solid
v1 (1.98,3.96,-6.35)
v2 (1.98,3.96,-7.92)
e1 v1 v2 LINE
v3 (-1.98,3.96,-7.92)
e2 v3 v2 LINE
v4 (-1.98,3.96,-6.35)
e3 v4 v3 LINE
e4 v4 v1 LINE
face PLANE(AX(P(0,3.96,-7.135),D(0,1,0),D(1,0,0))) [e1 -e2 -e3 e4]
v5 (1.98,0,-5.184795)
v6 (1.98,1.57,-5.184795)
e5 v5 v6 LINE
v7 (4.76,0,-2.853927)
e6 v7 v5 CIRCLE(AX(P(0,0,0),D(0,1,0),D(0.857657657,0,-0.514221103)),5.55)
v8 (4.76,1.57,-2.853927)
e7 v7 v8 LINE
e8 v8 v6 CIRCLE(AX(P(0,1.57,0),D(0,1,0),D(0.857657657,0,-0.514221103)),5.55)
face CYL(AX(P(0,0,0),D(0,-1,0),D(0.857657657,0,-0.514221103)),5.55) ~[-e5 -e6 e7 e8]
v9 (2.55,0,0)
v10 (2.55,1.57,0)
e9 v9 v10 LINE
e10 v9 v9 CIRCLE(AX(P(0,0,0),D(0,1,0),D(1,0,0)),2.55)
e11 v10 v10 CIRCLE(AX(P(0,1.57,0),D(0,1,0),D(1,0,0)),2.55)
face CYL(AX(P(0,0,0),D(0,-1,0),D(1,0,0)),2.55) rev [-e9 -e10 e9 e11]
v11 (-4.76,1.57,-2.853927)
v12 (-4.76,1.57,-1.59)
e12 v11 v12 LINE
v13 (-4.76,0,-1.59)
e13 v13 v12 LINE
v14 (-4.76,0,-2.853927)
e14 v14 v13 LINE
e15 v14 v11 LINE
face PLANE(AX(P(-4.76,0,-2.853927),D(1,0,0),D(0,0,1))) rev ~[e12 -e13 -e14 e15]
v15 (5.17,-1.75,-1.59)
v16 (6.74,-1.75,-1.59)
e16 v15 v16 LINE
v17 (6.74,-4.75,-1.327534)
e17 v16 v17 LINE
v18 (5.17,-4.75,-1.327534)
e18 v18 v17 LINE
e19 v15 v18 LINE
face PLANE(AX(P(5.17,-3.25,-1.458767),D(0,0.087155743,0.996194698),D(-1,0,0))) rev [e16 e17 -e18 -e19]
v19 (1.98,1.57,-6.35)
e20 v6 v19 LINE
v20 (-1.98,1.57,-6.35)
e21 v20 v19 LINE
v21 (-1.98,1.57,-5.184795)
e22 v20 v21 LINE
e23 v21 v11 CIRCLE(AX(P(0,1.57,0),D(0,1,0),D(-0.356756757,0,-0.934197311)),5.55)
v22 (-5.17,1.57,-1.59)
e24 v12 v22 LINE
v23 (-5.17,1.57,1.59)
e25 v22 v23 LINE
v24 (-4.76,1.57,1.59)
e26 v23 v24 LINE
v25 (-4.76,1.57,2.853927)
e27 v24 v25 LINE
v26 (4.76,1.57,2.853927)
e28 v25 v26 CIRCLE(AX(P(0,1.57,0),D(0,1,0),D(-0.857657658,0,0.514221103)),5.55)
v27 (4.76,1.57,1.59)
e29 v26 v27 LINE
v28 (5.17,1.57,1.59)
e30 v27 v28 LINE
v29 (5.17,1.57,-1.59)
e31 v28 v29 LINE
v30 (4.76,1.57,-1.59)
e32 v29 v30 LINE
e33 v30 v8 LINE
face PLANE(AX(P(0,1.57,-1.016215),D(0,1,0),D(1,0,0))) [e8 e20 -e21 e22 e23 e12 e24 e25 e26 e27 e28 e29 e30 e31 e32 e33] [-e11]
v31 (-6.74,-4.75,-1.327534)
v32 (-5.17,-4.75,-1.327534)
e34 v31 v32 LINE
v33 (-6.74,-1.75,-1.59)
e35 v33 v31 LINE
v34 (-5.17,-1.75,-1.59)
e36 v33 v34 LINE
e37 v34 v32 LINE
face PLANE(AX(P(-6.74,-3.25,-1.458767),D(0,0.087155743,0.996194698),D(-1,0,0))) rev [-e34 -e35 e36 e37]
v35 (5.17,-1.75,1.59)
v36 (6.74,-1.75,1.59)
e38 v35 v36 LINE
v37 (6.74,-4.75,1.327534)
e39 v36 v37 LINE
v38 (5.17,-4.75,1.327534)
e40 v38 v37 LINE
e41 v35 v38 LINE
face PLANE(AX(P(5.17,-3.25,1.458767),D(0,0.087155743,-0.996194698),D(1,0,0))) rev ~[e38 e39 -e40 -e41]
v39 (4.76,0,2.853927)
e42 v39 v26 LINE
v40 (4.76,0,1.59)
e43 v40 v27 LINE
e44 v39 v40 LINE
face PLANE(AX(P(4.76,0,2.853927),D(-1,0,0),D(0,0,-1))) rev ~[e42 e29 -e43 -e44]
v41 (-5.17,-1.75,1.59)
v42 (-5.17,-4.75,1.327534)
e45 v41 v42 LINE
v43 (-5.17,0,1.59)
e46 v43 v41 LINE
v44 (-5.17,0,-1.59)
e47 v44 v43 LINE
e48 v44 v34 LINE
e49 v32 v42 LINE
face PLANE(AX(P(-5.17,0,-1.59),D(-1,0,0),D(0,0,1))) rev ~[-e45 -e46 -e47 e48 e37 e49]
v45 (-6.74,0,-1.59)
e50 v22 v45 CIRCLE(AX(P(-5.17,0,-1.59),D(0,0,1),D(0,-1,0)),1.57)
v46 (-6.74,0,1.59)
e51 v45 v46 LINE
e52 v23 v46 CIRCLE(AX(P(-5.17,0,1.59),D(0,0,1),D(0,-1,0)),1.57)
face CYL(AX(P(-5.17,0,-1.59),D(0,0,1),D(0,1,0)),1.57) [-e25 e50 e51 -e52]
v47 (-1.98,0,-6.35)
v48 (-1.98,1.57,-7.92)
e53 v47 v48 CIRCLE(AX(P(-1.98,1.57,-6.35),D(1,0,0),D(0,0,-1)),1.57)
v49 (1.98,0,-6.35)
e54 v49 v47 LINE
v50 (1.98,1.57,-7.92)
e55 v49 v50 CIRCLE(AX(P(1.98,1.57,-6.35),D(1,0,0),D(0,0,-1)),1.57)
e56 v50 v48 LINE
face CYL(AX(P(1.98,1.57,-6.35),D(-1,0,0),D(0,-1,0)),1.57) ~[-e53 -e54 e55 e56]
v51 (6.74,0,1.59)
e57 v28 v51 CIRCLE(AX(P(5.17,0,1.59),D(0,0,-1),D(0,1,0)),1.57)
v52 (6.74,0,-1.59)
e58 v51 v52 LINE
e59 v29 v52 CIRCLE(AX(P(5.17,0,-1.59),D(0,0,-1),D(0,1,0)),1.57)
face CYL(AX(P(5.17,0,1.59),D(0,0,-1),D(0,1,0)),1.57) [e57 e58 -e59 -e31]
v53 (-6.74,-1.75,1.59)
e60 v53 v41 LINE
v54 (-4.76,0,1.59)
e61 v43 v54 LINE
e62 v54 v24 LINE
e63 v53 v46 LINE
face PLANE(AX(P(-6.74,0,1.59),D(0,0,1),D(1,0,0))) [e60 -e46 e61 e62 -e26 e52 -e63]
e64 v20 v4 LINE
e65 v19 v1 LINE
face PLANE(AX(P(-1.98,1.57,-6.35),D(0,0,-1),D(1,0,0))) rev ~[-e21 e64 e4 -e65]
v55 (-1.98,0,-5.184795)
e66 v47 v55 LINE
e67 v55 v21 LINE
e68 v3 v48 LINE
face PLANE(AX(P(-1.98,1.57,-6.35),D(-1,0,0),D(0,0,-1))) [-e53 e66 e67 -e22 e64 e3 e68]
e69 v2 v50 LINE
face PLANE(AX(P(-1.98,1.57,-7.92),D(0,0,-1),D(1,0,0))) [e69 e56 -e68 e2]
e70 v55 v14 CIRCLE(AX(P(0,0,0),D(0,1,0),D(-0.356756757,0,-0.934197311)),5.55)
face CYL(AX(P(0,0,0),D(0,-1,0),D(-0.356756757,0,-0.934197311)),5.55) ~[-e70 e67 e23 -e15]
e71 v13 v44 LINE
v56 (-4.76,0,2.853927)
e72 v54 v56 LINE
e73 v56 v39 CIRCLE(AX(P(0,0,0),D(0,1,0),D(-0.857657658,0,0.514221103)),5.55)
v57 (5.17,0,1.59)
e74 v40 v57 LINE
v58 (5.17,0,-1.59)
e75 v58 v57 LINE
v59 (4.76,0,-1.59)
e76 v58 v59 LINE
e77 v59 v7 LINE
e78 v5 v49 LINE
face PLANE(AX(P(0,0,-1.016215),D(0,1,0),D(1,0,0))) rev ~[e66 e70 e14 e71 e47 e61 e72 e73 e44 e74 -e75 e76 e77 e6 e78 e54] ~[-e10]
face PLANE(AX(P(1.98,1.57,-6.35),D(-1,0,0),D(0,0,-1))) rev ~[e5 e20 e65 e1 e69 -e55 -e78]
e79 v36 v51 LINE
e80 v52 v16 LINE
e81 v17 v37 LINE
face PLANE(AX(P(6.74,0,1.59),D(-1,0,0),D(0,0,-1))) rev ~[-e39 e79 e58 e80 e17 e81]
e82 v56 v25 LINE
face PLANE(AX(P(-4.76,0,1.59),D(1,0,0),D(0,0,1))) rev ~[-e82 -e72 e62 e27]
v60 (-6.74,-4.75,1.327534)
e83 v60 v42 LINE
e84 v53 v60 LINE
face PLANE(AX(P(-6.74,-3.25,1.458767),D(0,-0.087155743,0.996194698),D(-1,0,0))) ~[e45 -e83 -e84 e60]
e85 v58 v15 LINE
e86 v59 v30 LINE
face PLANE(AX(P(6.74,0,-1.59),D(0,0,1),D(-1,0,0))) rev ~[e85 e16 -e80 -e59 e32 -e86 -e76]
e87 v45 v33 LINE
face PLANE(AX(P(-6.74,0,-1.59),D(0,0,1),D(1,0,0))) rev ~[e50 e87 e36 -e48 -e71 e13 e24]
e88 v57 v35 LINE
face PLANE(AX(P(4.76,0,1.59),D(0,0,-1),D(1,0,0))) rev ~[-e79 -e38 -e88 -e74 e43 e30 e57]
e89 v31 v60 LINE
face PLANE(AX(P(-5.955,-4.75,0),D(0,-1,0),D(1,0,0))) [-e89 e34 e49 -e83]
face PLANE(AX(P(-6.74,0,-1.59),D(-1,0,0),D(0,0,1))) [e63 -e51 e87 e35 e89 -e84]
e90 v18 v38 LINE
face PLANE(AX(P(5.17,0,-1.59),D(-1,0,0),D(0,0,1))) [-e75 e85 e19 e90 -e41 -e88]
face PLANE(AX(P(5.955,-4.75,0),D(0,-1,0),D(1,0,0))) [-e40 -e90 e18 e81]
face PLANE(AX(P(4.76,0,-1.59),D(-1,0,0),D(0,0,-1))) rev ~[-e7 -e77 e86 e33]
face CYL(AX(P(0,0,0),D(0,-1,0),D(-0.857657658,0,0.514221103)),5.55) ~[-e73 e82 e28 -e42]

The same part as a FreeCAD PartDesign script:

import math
import FreeCAD as App
import Part
import Sketcher

V = App.Vector
Q = App.Units.Quantity


def edges_at(feature, points):
    """Names of the edges that pass closest to the given points."""
    edges = feature.Shape.Edges
    near = lambda p: min(range(len(edges)), key=lambda i: edges[i].distToShape(Part.Vertex(*p))[0])
    return sorted({f"Edge{near(p) + 1}" for p in points})


def add_polygon(sketch, points):
    """Adds a closed chain of lines whose ends are joined by coincident constraints."""
    first, n = sketch.GeometryCount, len(points)
    for a, b in zip(points, points[1:] + points[:1]):
        sketch.addGeometry(Part.LineSegment(App.Vector(*a, 0), App.Vector(*b, 0)), False)
    for i in range(n):
        sketch.addConstraint(Sketcher.Constraint("Coincident", first + i, 2, first + (i + 1) % n, 1))

doc = App.newDocument("Part")
body = doc.addObject("PartDesign::Body", "Body")

sketch1 = body.newObject("Sketcher::SketchObject", "Sketch")
sketch1.AttachmentSupport = (doc.getObject("XZ_Plane"), [""])
sketch1.MapMode = "FlatFace"
sketch1.addGeometry([
    Part.LineSegment(V(-4.76, -2.853927, 0), V(-4.76, -1.59, 0)),
    Part.LineSegment(V(-4.76, -1.59, 0), V(-6.74, -1.59, 0)),
    Part.LineSegment(V(-6.74, -1.59, 0), V(-6.74, 1.59, 0)),
    Part.LineSegment(V(-6.74, 1.59, 0), V(-4.76, 1.59, 0)),
    Part.LineSegment(V(-4.76, 1.59, 0), V(-4.76, 2.853927, 0)),
    Part.ArcOfCircle(Part.Circle(V(0, 0, 0), V(0, 0, 1), 5.55), math.radians(30.945407), math.radians(149.054593)),
    Part.LineSegment(V(4.76, 2.853927, 0), V(4.76, 1.59, 0)),
    Part.LineSegment(V(4.76, 1.59, 0), V(6.74, 1.59, 0)),
    Part.LineSegment(V(6.74, 1.59, 0), V(6.74, -1.59, 0)),
    Part.LineSegment(V(6.74, -1.59, 0), V(4.76, -1.59, 0)),
    Part.LineSegment(V(4.76, -1.59, 0), V(4.76, -2.853927, 0)),
    Part.ArcOfCircle(Part.Circle(V(0, 0, 0), V(0, 0, 1), 5.55), math.radians(-69.09885), math.radians(-30.945407)),
    Part.LineSegment(V(1.98, -5.184795, 0), V(1.98, -7.92, 0)),
    Part.LineSegment(V(1.98, -7.92, 0), V(-1.98, -7.92, 0)),
    Part.LineSegment(V(-1.98, -7.92, 0), V(-1.98, -5.184795, 0)),
    Part.ArcOfCircle(Part.Circle(V(0, 0, 0), V(0, 0, 1), 5.55), math.radians(-149.054593), math.radians(-110.90115)),
    Part.Circle(V(0, 0, 0), V(0, 0, 1), 2.55),
], False)
sketch1.addConstraint([
    Sketcher.Constraint("Coincident", 0, 2, 1, 1),
    Sketcher.Constraint("Coincident", 1, 2, 2, 1),
    Sketcher.Constraint("Coincident", 2, 2, 3, 1),
    Sketcher.Constraint("Coincident", 3, 2, 4, 1),
    Sketcher.Constraint("Coincident", 4, 2, 5, 2),
    Sketcher.Constraint("Coincident", 5, 1, 6, 1),
    Sketcher.Constraint("Coincident", 6, 2, 7, 1),
    Sketcher.Constraint("Coincident", 7, 2, 8, 1),
    Sketcher.Constraint("Coincident", 8, 2, 9, 1),
    Sketcher.Constraint("Coincident", 9, 2, 10, 1),
    Sketcher.Constraint("Coincident", 10, 2, 11, 2),
    Sketcher.Constraint("Coincident", 11, 1, 12, 1),
    Sketcher.Constraint("Coincident", 12, 2, 13, 1),
    Sketcher.Constraint("Coincident", 13, 2, 14, 1),
    Sketcher.Constraint("Coincident", 14, 2, 15, 2),
    Sketcher.Constraint("Coincident", 15, 1, 0, 1),
    Sketcher.Constraint("Vertical", 0),
    Sketcher.Constraint("Horizontal", 1),
    Sketcher.Constraint("Vertical", 2),
    Sketcher.Constraint("Horizontal", 3),
    Sketcher.Constraint("Vertical", 4),
    Sketcher.Constraint("Vertical", 6),
    Sketcher.Constraint("Horizontal", 7),
    Sketcher.Constraint("Vertical", 8),
    Sketcher.Constraint("Horizontal", 9),
    Sketcher.Constraint("Vertical", 10),
    Sketcher.Constraint("Vertical", 12),
    Sketcher.Constraint("Horizontal", 13),
    Sketcher.Constraint("Vertical", 14),
    Sketcher.Constraint("Coincident", 5, 3, -1, 1),
    Sketcher.Constraint("Coincident", 11, 3, -1, 1),
    Sketcher.Constraint("Coincident", 15, 3, -1, 1),
    Sketcher.Constraint("Coincident", 16, 3, -1, 1),
    Sketcher.Constraint("Equal", 5, 11),
    Sketcher.Constraint("Equal", 11, 15),
    Sketcher.Constraint("Symmetric", 0, 2, 6, 2, -1, 1),
    Sketcher.Constraint("Symmetric", 2, 2, 8, 2, -1, 1),
    Sketcher.Constraint("Symmetric", 3, 2, 6, 2, -2),
    Sketcher.Constraint("Horizontal", 11, 1, 14, 2),
    Sketcher.Constraint("Horizontal", 10, 2, 15, 1),
    Sketcher.Constraint("Diameter", 16, Q("5.1 mm")),
    Sketcher.Constraint("Radius", 5, Q("5.55 mm")),
    Sketcher.Constraint("DistanceX", 1, 2, 1, 1, Q("1.98 mm")),
    Sketcher.Constraint("DistanceX", 13, 2, 13, 1, Q("3.96 mm")),
    Sketcher.Constraint("DistanceY", 2, 1, 2, 2, Q("3.18 mm")),
    Sketcher.Constraint("DistanceX", 0, 2, -1, 1, Q("4.76 mm")),
    Sketcher.Constraint("DistanceY", 12, 2, -1, 1, Q("7.92 mm")),
])
pad1 = body.newObject("PartDesign::Pad", "Pad")
pad1.Profile = sketch1
pad1.Length = 1.57
pad1.Reversed = True

sketch2 = body.newObject("Sketcher::SketchObject", "Sketch001")
sketch2.AttachmentSupport = (doc.getObject("XZ_Plane"), [""])
sketch2.MapMode = "FlatFace"
add_polygon(sketch2, [(-6.74, 1.59), (-6.74, -1.59), (-5.17, -1.59), (-5.17, 1.59)])
add_polygon(sketch2, [(5.17, 1.59), (5.17, -1.59), (6.74, -1.59), (6.74, 1.59)])
sketch2.addConstraint([
    Sketcher.Constraint("Vertical", 0),
    Sketcher.Constraint("Horizontal", 1),
    Sketcher.Constraint("Vertical", 2),
    Sketcher.Constraint("Horizontal", 3),
    Sketcher.Constraint("Vertical", 4),
    Sketcher.Constraint("Horizontal", 5),
    Sketcher.Constraint("Vertical", 6),
    Sketcher.Constraint("Horizontal", 7),
    Sketcher.Constraint("Symmetric", 2, 2, 4, 2, -1, 1),
    Sketcher.Constraint("Symmetric", 0, 2, 6, 2, -1, 1),
    Sketcher.Constraint("Horizontal", 1, 2, 4, 2),
    Sketcher.Constraint("DistanceX", 1, 1, 1, 2, Q("1.57 mm")),
    Sketcher.Constraint("DistanceY", 0, 2, 0, 1, Q("3.18 mm")),
    Sketcher.Constraint("DistanceX", 0, 2, -1, 1, Q("6.74 mm")),
])
pad2 = body.newObject("PartDesign::Pad", "Pad001")
pad2.Profile = sketch2
pad2.Length = 4.75

sketch3 = body.newObject("Sketcher::SketchObject", "Sketch002")
sketch3.AttachmentSupport = (doc.getObject("XZ_Plane"), [""])
sketch3.MapMode = "FlatFace"
sketch3.AttachmentOffset = App.Placement(V(0, 0, -1.57), App.Rotation())
add_polygon(sketch3, [(-1.98, -7.92), (-1.98, -6.35), (1.98, -6.35), (1.98, -7.92)])
sketch3.addConstraint([
    Sketcher.Constraint("Vertical", 0),
    Sketcher.Constraint("Horizontal", 1),
    Sketcher.Constraint("Vertical", 2),
    Sketcher.Constraint("Horizontal", 3),
    Sketcher.Constraint("DistanceX", 1, 1, 1, 2, Q("3.96 mm")),
    Sketcher.Constraint("DistanceY", 0, 1, 0, 2, Q("1.57 mm")),
    Sketcher.Constraint("DistanceX", 0, 2, -1, 1, Q("1.98 mm")),
    Sketcher.Constraint("DistanceY", 0, 2, -1, 1, Q("6.35 mm")),
])
pad3 = body.newObject("PartDesign::Pad", "Pad002")
pad3.Profile = sketch3
pad3.Length = 2.39
pad3.Reversed = True
doc.recompute()

fillet = body.newObject("PartDesign::Fillet", "Fillet")
fillet.Base = (pad3, edges_at(pad3, [(0, 0, -7.92), (6.74, 1.57, 0), (-6.74, 1.57, 0)]))
fillet.Radius = 1.57
doc.recompute()

chamfer = body.newObject("PartDesign::Chamfer", "Chamfer")
chamfer.Base = (fillet, edges_at(fillet, [(5.955, -4.75, -1.59)]))
chamfer.ChamferType = "Two distances"
chamfer.Size = 3
chamfer.Size2 = 0.262466
doc.recompute()

chamfer2 = body.newObject("PartDesign::Chamfer", "Chamfer001")
chamfer2.Base = (chamfer, edges_at(chamfer, [(5.955, -4.75, 1.59)]))
chamfer2.ChamferType = "Two distances"
chamfer2.Size = 3
chamfer2.Size2 = 0.262466
chamfer2.FlipDirection = True
doc.recompute()

chamfer3 = body.newObject("PartDesign::Chamfer", "Chamfer002")
chamfer3.Base = (chamfer2, edges_at(chamfer2, [(-5.955, -4.75, -1.59)]))
chamfer3.ChamferType = "Two distances"
chamfer3.Size = 3
chamfer3.Size2 = 0.262466
doc.recompute()

chamfer4 = body.newObject("PartDesign::Chamfer", "Chamfer003")
chamfer4.Base = (chamfer3, edges_at(chamfer3, [(-5.955, -4.75, 1.59)]))
chamfer4.ChamferType = "Two distances"
chamfer4.Size = 3
chamfer4.Size2 = 0.262466
chamfer4.FlipDirection = True

doc.recompute()
